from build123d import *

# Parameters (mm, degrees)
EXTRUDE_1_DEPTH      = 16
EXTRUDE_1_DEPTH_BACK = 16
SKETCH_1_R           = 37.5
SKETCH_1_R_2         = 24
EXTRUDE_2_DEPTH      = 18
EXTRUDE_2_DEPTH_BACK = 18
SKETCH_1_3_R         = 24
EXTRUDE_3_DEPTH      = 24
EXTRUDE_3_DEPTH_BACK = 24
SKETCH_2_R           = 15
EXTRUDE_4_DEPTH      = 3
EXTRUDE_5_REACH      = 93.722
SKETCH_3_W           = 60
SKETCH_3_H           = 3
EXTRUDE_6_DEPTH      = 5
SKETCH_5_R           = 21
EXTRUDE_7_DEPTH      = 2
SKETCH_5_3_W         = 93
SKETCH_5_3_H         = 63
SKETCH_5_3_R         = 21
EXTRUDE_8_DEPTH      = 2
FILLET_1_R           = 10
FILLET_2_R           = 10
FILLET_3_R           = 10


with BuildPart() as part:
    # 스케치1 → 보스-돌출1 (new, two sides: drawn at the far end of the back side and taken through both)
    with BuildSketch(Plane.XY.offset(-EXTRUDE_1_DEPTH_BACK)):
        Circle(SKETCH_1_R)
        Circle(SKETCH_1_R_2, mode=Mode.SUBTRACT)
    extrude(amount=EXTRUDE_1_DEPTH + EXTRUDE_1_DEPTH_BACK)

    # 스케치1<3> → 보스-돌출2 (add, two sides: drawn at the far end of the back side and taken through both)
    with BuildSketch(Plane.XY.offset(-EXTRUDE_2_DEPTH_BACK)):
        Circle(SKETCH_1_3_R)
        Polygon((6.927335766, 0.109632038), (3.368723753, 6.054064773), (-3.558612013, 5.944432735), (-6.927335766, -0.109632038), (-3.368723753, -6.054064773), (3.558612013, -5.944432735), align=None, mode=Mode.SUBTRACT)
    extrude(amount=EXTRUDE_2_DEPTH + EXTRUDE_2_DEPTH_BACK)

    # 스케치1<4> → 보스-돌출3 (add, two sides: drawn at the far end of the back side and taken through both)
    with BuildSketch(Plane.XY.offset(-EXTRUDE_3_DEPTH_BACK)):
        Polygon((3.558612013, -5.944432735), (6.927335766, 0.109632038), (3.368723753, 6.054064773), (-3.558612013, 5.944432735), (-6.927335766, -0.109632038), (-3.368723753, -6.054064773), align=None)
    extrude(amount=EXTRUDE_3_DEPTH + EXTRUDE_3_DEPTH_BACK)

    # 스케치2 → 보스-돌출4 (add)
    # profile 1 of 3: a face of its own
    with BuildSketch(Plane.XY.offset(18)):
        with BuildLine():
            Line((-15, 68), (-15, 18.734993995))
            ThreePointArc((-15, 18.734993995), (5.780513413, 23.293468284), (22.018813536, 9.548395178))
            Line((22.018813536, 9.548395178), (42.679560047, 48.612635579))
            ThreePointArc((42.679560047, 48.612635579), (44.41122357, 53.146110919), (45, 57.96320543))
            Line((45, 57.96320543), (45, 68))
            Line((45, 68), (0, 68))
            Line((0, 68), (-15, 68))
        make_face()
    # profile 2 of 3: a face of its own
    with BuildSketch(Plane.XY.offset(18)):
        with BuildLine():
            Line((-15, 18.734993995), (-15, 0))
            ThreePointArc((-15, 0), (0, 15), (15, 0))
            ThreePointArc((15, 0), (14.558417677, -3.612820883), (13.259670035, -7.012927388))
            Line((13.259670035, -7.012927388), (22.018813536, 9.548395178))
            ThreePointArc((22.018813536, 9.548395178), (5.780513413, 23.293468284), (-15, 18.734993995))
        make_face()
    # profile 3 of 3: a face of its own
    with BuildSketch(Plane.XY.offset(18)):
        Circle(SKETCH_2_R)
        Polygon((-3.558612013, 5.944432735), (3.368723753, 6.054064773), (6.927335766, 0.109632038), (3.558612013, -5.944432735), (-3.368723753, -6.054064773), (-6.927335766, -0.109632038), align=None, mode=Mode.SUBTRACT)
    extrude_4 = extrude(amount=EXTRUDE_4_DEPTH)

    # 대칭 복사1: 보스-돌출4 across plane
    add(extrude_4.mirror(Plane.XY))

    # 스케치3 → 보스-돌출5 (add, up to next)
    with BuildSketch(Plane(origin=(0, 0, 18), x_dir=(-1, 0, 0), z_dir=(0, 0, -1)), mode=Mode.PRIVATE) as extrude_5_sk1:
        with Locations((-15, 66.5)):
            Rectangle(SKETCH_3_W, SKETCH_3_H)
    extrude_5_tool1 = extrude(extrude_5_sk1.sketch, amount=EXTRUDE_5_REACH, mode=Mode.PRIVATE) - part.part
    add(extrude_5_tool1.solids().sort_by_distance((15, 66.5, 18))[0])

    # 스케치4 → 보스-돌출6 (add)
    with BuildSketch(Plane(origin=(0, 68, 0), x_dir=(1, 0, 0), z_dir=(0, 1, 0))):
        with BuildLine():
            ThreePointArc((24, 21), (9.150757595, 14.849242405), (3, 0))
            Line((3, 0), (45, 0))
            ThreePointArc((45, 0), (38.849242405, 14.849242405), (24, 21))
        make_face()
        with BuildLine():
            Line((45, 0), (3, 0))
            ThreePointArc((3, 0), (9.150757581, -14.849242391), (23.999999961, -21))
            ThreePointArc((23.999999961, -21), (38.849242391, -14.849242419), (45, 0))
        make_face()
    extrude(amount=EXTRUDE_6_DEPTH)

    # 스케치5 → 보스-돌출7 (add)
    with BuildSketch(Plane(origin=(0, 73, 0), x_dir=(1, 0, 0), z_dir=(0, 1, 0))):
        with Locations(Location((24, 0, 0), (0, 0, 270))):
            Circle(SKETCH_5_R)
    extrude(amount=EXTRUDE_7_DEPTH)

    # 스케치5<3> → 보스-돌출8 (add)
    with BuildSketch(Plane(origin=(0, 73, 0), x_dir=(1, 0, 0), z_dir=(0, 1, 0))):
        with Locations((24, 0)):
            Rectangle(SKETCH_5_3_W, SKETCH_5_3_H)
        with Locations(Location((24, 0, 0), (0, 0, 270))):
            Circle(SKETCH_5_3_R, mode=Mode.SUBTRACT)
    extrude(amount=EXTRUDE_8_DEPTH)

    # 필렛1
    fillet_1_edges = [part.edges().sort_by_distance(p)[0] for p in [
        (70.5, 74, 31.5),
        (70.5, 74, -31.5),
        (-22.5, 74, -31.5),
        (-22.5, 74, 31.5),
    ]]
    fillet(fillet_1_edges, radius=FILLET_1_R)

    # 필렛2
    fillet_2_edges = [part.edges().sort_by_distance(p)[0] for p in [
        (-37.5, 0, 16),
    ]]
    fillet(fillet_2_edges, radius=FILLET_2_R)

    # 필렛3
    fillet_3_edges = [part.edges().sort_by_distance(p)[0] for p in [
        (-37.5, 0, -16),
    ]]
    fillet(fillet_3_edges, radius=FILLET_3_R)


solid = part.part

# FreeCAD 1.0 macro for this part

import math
import FreeCAD as App
import Part
import Sketcher


def edges_at(feature, points):
    """Names of the edges that pass closest to the given points."""
    edges = feature.Shape.Edges
    near = lambda p: min(range(len(edges)), key=lambda i: edges[i].distToShape(Part.Vertex(*p))[0])
    return sorted({f"Edge{near(p) + 1}" for p in points})

doc = App.newDocument("Part")
body = doc.addObject("PartDesign::Body", "Body")

sketch1 = doc.addObject("Sketcher::SketchObject", "Sketch")
body.addObject(sketch1)
sketch1.AttachmentSupport = (doc.XY_Plane, [""])
sketch1.MapMode = "FlatFace"
sketch1.addGeometry([
    Part.Circle(App.Vector(0, 0, 0), App.Vector(0, 0, 1), 38),
    Part.Circle(App.Vector(0, 0, 0), App.Vector(0, 0, 1), 24),
], False)
sketch1.addConstraint([
    Sketcher.Constraint("Coincident", 0, 3, -1, 1),
    Sketcher.Constraint("Coincident", 1, 3, -1, 1),
    Sketcher.Constraint("Diameter", 0, 75.0),
    Sketcher.Constraint("Diameter", 1, 48.0),
])
pad1 = doc.addObject("PartDesign::Pad", "Pad")
body.addObject(pad1)
pad1.Profile = sketch1
pad1.Type = "TwoLengths"
pad1.Length = 16
pad1.Length2 = 16

sketch2 = doc.addObject("Sketcher::SketchObject", "Sketch001")
body.addObject(sketch2)
sketch2.AttachmentSupport = (doc.XY_Plane, [""])
sketch2.MapMode = "FlatFace"
sketch2.addGeometry([
    Part.Circle(App.Vector(0, 0, 0), App.Vector(0, 0, 1), 24),
    Part.LineSegment(App.Vector(3, 6, 0), App.Vector(7, 0, 0)),
    Part.LineSegment(App.Vector(7, 0, 0), App.Vector(4, -6, 0)),
    Part.LineSegment(App.Vector(4, -6, 0), App.Vector(-3, -6, 0)),
    Part.LineSegment(App.Vector(-3, -6, 0), App.Vector(-7, 0, 0)),
    Part.LineSegment(App.Vector(-7, 0, 0), App.Vector(-4, 6, 0)),
    Part.LineSegment(App.Vector(-4, 6, 0), App.Vector(3, 6, 0)),
], False)
sketch2.addConstraint([
    Sketcher.Constraint("Coincident", 1, 2, 2, 1),
    Sketcher.Constraint("Coincident", 2, 2, 3, 1),
    Sketcher.Constraint("Coincident", 3, 2, 4, 1),
    Sketcher.Constraint("Coincident", 4, 2, 5, 1),
    Sketcher.Constraint("Coincident", 5, 2, 6, 1),
    Sketcher.Constraint("Coincident", 6, 2, 1, 1),
    Sketcher.Constraint("Coincident", 0, 3, -1, 1),
    Sketcher.Constraint("Symmetric", 1, 2, 4, 2, -1, 1),
    Sketcher.Constraint("Symmetric", 2, 2, 5, 2, -1, 1),
    Sketcher.Constraint("Symmetric", 3, 2, 6, 2, -1, 1),
    Sketcher.Constraint("Equal", 1, 2),
    Sketcher.Constraint("Equal", 2, 3),
    Sketcher.Constraint("Diameter", 0, 48.0),
    Sketcher.Constraint("DistanceY", 2, 2, 4, 2, 5.834801),
    Sketcher.Constraint("DistanceX", 3, 2, 1, 2, 10.29606),
    Sketcher.Constraint("DistanceX", 4, 2, 1, 2, 13.854672),
    Sketcher.Constraint("DistanceX", 5, 2, 3, 2, 0.189888),
])
pad2 = doc.addObject("PartDesign::Pad", "Pad001")
body.addObject(pad2)
pad2.Profile = sketch2
pad2.Type = "TwoLengths"
pad2.Length = 18
pad2.Length2 = 18

sketch3 = doc.addObject("Sketcher::SketchObject", "Sketch002")
body.addObject(sketch3)
sketch3.AttachmentSupport = (doc.XY_Plane, [""])
sketch3.MapMode = "FlatFace"
sketch3.addGeometry([
    Part.LineSegment(App.Vector(4, -6, 0), App.Vector(7, 0, 0)),
    Part.LineSegment(App.Vector(7, 0, 0), App.Vector(3, 6, 0)),
    Part.LineSegment(App.Vector(3, 6, 0), App.Vector(-4, 6, 0)),
    Part.LineSegment(App.Vector(-4, 6, 0), App.Vector(-7, 0, 0)),
    Part.LineSegment(App.Vector(-7, 0, 0), App.Vector(-3, -6, 0)),
    Part.LineSegment(App.Vector(-3, -6, 0), App.Vector(4, -6, 0)),
], False)
sketch3.addConstraint([
    Sketcher.Constraint("Coincident", 0, 2, 1, 1),
    Sketcher.Constraint("Coincident", 1, 2, 2, 1),
    Sketcher.Constraint("Coincident", 2, 2, 3, 1),
    Sketcher.Constraint("Coincident", 3, 2, 4, 1),
    Sketcher.Constraint("Coincident", 4, 2, 5, 1),
    Sketcher.Constraint("Coincident", 5, 2, 0, 1),
    Sketcher.Constraint("Symmetric", 0, 2, 3, 2, -1, 1),
    Sketcher.Constraint("Symmetric", 1, 2, 4, 2, -1, 1),
    Sketcher.Constraint("Symmetric", 2, 2, 5, 2, -1, 1),
    Sketcher.Constraint("Equal", 0, 1),
    Sketcher.Constraint("Equal", 1, 2),
    Sketcher.Constraint("DistanceY", 0, 2, 2, 2, 5.834801),
    Sketcher.Constraint("DistanceX", 3, 2, 1, 2, 10.29606),
    Sketcher.Constraint("DistanceX", 3, 2, 0, 2, 13.854672),
    Sketcher.Constraint("DistanceX", 2, 2, 4, 2, 0.189888),
])
pad3 = doc.addObject("PartDesign::Pad", "Pad002")
body.addObject(pad3)
pad3.Profile = sketch3
pad3.Type = "TwoLengths"
pad3.Length = 24
pad3.Length2 = 24

sketch4 = doc.addObject("Sketcher::SketchObject", "Sketch003")
body.addObject(sketch4)
sketch4.AttachmentSupport = (doc.XY_Plane, [""])
sketch4.MapMode = "FlatFace"
sketch4.AttachmentOffset = App.Placement(App.Vector(0, 0, 18), App.Rotation())
sketch4.addGeometry([
    Part.LineSegment(App.Vector(-15, 68, 0), App.Vector(-15, 0, 0)),
    Part.ArcOfCircle(Part.Circle(App.Vector(0, 0, 0), App.Vector(0, 0, 1), 15), math.radians(180), math.radians(332)),
    Part.LineSegment(App.Vector(13, -7, 0), App.Vector(22, 10, 0)),
    Part.LineSegment(App.Vector(22, 10, 0), App.Vector(43, 49, 0)),
    Part.ArcOfCircle(Part.Circle(App.Vector(25, 58, 0), App.Vector(0, 0, 1), 20), math.radians(-28), math.radians(0)),
    Part.LineSegment(App.Vector(45, 58, 0), App.Vector(45, 68, 0)),
    Part.LineSegment(App.Vector(45, 68, 0), App.Vector(-15, 68, 0)),
    Part.LineSegment(App.Vector(-4, 6, 0), App.Vector(3, 6, 0)),
    Part.LineSegment(App.Vector(3, 6, 0), App.Vector(7, 0, 0)),
    Part.LineSegment(App.Vector(7, 0, 0), App.Vector(4, -6, 0)),
    Part.LineSegment(App.Vector(4, -6, 0), App.Vector(-3, -6, 0)),
    Part.LineSegment(App.Vector(-3, -6, 0), App.Vector(-7, 0, 0)),
    Part.LineSegment(App.Vector(-7, 0, 0), App.Vector(-4, 6, 0)),
], False)
sketch4.addConstraint([
    Sketcher.Constraint("Tangent", 0, 2, 1, 1),
    Sketcher.Constraint("Tangent", 1, 2, 2, 1),
    Sketcher.Constraint("Coincident", 2, 2, 3, 1),
    Sketcher.Constraint("Tangent", 3, 2, 4, 1),
    Sketcher.Constraint("Tangent", 4, 2, 5, 1),
    Sketcher.Constraint("Coincident", 5, 2, 6, 1),
    Sketcher.Constraint("Coincident", 6, 2, 0, 1),
    Sketcher.Constraint("Coincident", 7, 2, 8, 1),
    Sketcher.Constraint("Coincident", 8, 2, 9, 1),
    Sketcher.Constraint("Coincident", 9, 2, 10, 1),
    Sketcher.Constraint("Coincident", 10, 2, 11, 1),
    Sketcher.Constraint("Coincident", 11, 2, 12, 1),
    Sketcher.Constraint("Coincident", 12, 2, 7, 1),
    Sketcher.Constraint("Vertical", 0),
    Sketcher.Constraint("Vertical", 5),
    Sketcher.Constraint("Horizontal", 6),
    Sketcher.Constraint("Coincident", 1, 3, -1, 1),
    Sketcher.Constraint("Symmetric", 7, 2, 10, 2, -1, 1),
    Sketcher.Constraint("Symmetric", 8, 2, 11, 2, -1, 1),
    Sketcher.Constraint("Symmetric", 9, 2, 12, 2, -1, 1),
    Sketcher.Constraint("Parallel", 2, 3),
    Sketcher.Constraint("Equal", 7, 8),
    Sketcher.Constraint("Equal", 8, 9),
    Sketcher.Constraint("Radius", 1, 15.0),
    Sketcher.Constraint("Radius", 4, 20.0),
    Sketcher.Constraint("DistanceX", 6, 2, 6, 1, 60.0),
    Sketcher.Constraint("DistanceY", 0, 2, 0, 1, 68.0),
    Sketcher.Constraint("DistanceY", 9, 2, 11, 2, 5.834801),
    Sketcher.Constraint("DistanceY", 5, 1, 5, 2, 10.036795),
    Sketcher.Constraint("DistanceY", 2, 2, 4, 3, 48.41481),
    Sketcher.Constraint("DistanceX", 7, 2, 2, 2, 18.65009),
    Sketcher.Constraint("DistanceY", 7, 2, 2, 2, 3.49433),
    Sketcher.Constraint("DistanceY", 1, 2, 8, 2, 7.122559),
])
pad4 = doc.addObject("PartDesign::Pad", "Pad003")
body.addObject(pad4)
pad4.Profile = sketch4
pad4.Length = 3
doc.recompute()

mirrored = doc.addObject("PartDesign::Mirrored", "Mirrored")
body.addObject(mirrored)
mirrored.Originals = [pad4]
mirrored.MirrorPlane = (doc.XY_Plane, [""])
body.Tip = mirrored

sketch5 = doc.addObject("Sketcher::SketchObject", "Sketch004")
body.addObject(sketch5)
sketch5.AttachmentSupport = (doc.XY_Plane, [""])
sketch5.MapMode = "FlatFace"
sketch5.AttachmentOffset = App.Placement(App.Vector(0, 0, 18), App.Rotation())
sketch5.addGeometry([
    Part.LineSegment(App.Vector(45, 68, 0), App.Vector(45, 65, 0)),
    Part.LineSegment(App.Vector(45, 65, 0), App.Vector(-15, 65, 0)),
    Part.LineSegment(App.Vector(-15, 65, 0), App.Vector(-15, 68, 0)),
    Part.LineSegment(App.Vector(-15, 68, 0), App.Vector(45, 68, 0)),
], False)
sketch5.addConstraint([
    Sketcher.Constraint("Coincident", 0, 2, 1, 1),
    Sketcher.Constraint("Coincident", 1, 2, 2, 1),
    Sketcher.Constraint("Coincident", 2, 2, 3, 1),
    Sketcher.Constraint("Coincident", 3, 2, 0, 1),
    Sketcher.Constraint("Vertical", 0),
    Sketcher.Constraint("Horizontal", 1),
    Sketcher.Constraint("Vertical", 2),
    Sketcher.Constraint("Horizontal", 3),
    Sketcher.Constraint("DistanceX", 1, 2, 1, 1, 60.0),
    Sketcher.Constraint("DistanceY", 0, 2, 0, 1, 3.0),
    Sketcher.Constraint("DistanceX", -1, 1, 0, 2, 45.0),
    Sketcher.Constraint("DistanceY", -1, 1, 0, 2, 65.0),
])
pad5 = doc.addObject("PartDesign::Pad", "Pad004")
body.addObject(pad5)
pad5.Profile = sketch5
pad5.Type = "UpToFirst"
pad5.Reversed = True

sketch6 = doc.addObject("Sketcher::SketchObject", "Sketch005")
body.addObject(sketch6)
sketch6.AttachmentSupport = (doc.XZ_Plane, [""])
sketch6.MapMode = "FlatFace"
sketch6.AttachmentOffset = App.Placement(App.Vector(0, 0, -68), App.Rotation())
sketch6.addGeometry([
    Part.ArcOfCircle(Part.Circle(App.Vector(24, 0, 0), App.Vector(0, 0, 1), 21), math.radians(180), math.radians(270)),
    Part.ArcOfCircle(Part.Circle(App.Vector(24, 0, 0), App.Vector(0, 0, 1), 21), math.radians(90), math.radians(180)),
    Part.ArcOfCircle(Part.Circle(App.Vector(24, 0, 0), App.Vector(0, 0, 1), 21), math.radians(0), math.radians(90)),
    Part.ArcOfCircle(Part.Circle(App.Vector(24, 0, 0), App.Vector(0, 0, 1), 21), math.radians(-90), math.radians(0)),
], False)
sketch6.addConstraint([
    Sketcher.Constraint("Tangent", 0, 1, 1, 2),
    Sketcher.Constraint("Tangent", 1, 1, 2, 2),
    Sketcher.Constraint("Tangent", 2, 1, 3, 2),
    Sketcher.Constraint("Tangent", 3, 1, 0, 2),
    Sketcher.Constraint("Equal", 0, 1),
    Sketcher.Constraint("Symmetric", 1, 1, 3, 1, -1),
    Sketcher.Constraint("PointOnObject", 0, 1, -1),
    Sketcher.Constraint("PointOnObject", 2, 1, -1),
    Sketcher.Constraint("Vertical", 3, 3, 1, 1),
    Sketcher.Constraint("Radius", 0, 21.0),
    Sketcher.Constraint("DistanceX", -1, 1, 0, 3, 24.0),
])
pad6 = doc.addObject("PartDesign::Pad", "Pad005")
body.addObject(pad6)
pad6.Profile = sketch6
pad6.Length = 5
pad6.Reversed = True

sketch7 = doc.addObject("Sketcher::SketchObject", "Sketch006")
body.addObject(sketch7)
sketch7.AttachmentSupport = (doc.XZ_Plane, [""])
sketch7.MapMode = "FlatFace"
sketch7.AttachmentOffset = App.Placement(App.Vector(0, 0, -73), App.Rotation())
sketch7.addGeometry(Part.Circle(App.Vector(24, 0, 0), App.Vector(0, 0, 1), 21), False)
sketch7.addConstraint([
    Sketcher.Constraint("PointOnObject", 0, 3, -1),
    Sketcher.Constraint("Diameter", 0, 42.0),
    Sketcher.Constraint("DistanceX", -1, 1, 0, 3, 24.0),
])
pad7 = doc.addObject("PartDesign::Pad", "Pad006")
body.addObject(pad7)
pad7.Profile = sketch7
pad7.Length = 2
pad7.Reversed = True

sketch8 = doc.addObject("Sketcher::SketchObject", "Sketch007")
body.addObject(sketch8)
sketch8.AttachmentSupport = (doc.XZ_Plane, [""])
sketch8.MapMode = "FlatFace"
sketch8.AttachmentOffset = App.Placement(App.Vector(0, 0, -73), App.Rotation())
sketch8.addGeometry([
    Part.LineSegment(App.Vector(-22, -32, 0), App.Vector(-22, 32, 0)),
    Part.LineSegment(App.Vector(-22, 32, 0), App.Vector(70, 32, 0)),
    Part.LineSegment(App.Vector(70, 32, 0), App.Vector(70, -32, 0)),
    Part.LineSegment(App.Vector(70, -32, 0), App.Vector(-22, -32, 0)),
    Part.Circle(App.Vector(24, 0, 0), App.Vector(0, 0, 1), 21),
], False)
sketch8.addConstraint([
    Sketcher.Constraint("Coincident", 0, 2, 1, 1),
    Sketcher.Constraint("Coincident", 1, 2, 2, 1),
    Sketcher.Constraint("Coincident", 2, 2, 3, 1),
    Sketcher.Constraint("Coincident", 3, 2, 0, 1),
    Sketcher.Constraint("Vertical", 0),
    Sketcher.Constraint("Horizontal", 1),
    Sketcher.Constraint("Vertical", 2),
    Sketcher.Constraint("Horizontal", 3),
    Sketcher.Constraint("PointOnObject", 4, 3, -1),
    Sketcher.Constraint("Diameter", 4, 42.0),
    Sketcher.Constraint("DistanceX", 1, 1, 1, 2, 93.0),
    Sketcher.Constraint("DistanceY", 0, 1, 0, 2, 63.0),
    Sketcher.Constraint("DistanceX", -1, 1, 4, 3, 24.0),
    Sketcher.Constraint("DistanceX", 0, 2, -1, 1, 22.5),
    Sketcher.Constraint("DistanceY", -1, 1, 0, 2, 31.5),
])
pad8 = doc.addObject("PartDesign::Pad", "Pad007")
body.addObject(pad8)
pad8.Profile = sketch8
pad8.Length = 2
pad8.Reversed = True
doc.recompute()

fillet = doc.addObject("PartDesign::Fillet", "Fillet")
body.addObject(fillet)
fillet.Base = (pad8, edges_at(pad8, [
    (70.5, 74, 31.5),
    (70.5, 74, -31.5),
    (-22.5, 74, -31.5),
    (-22.5, 74, 31.5),
]))
fillet.Radius = 10
doc.recompute()

fillet2 = doc.addObject("PartDesign::Fillet", "Fillet001")
body.addObject(fillet2)
fillet2.Base = (fillet, edges_at(fillet, [(-37.5, 0, 16)]))
fillet2.Radius = 10
doc.recompute()

fillet3 = doc.addObject("PartDesign::Fillet", "Fillet002")
body.addObject(fillet3)
fillet3.Base = (fillet2, edges_at(fillet2, [(-37.5, 0, -16)]))
fillet3.Radius = 10

doc.recompute()
